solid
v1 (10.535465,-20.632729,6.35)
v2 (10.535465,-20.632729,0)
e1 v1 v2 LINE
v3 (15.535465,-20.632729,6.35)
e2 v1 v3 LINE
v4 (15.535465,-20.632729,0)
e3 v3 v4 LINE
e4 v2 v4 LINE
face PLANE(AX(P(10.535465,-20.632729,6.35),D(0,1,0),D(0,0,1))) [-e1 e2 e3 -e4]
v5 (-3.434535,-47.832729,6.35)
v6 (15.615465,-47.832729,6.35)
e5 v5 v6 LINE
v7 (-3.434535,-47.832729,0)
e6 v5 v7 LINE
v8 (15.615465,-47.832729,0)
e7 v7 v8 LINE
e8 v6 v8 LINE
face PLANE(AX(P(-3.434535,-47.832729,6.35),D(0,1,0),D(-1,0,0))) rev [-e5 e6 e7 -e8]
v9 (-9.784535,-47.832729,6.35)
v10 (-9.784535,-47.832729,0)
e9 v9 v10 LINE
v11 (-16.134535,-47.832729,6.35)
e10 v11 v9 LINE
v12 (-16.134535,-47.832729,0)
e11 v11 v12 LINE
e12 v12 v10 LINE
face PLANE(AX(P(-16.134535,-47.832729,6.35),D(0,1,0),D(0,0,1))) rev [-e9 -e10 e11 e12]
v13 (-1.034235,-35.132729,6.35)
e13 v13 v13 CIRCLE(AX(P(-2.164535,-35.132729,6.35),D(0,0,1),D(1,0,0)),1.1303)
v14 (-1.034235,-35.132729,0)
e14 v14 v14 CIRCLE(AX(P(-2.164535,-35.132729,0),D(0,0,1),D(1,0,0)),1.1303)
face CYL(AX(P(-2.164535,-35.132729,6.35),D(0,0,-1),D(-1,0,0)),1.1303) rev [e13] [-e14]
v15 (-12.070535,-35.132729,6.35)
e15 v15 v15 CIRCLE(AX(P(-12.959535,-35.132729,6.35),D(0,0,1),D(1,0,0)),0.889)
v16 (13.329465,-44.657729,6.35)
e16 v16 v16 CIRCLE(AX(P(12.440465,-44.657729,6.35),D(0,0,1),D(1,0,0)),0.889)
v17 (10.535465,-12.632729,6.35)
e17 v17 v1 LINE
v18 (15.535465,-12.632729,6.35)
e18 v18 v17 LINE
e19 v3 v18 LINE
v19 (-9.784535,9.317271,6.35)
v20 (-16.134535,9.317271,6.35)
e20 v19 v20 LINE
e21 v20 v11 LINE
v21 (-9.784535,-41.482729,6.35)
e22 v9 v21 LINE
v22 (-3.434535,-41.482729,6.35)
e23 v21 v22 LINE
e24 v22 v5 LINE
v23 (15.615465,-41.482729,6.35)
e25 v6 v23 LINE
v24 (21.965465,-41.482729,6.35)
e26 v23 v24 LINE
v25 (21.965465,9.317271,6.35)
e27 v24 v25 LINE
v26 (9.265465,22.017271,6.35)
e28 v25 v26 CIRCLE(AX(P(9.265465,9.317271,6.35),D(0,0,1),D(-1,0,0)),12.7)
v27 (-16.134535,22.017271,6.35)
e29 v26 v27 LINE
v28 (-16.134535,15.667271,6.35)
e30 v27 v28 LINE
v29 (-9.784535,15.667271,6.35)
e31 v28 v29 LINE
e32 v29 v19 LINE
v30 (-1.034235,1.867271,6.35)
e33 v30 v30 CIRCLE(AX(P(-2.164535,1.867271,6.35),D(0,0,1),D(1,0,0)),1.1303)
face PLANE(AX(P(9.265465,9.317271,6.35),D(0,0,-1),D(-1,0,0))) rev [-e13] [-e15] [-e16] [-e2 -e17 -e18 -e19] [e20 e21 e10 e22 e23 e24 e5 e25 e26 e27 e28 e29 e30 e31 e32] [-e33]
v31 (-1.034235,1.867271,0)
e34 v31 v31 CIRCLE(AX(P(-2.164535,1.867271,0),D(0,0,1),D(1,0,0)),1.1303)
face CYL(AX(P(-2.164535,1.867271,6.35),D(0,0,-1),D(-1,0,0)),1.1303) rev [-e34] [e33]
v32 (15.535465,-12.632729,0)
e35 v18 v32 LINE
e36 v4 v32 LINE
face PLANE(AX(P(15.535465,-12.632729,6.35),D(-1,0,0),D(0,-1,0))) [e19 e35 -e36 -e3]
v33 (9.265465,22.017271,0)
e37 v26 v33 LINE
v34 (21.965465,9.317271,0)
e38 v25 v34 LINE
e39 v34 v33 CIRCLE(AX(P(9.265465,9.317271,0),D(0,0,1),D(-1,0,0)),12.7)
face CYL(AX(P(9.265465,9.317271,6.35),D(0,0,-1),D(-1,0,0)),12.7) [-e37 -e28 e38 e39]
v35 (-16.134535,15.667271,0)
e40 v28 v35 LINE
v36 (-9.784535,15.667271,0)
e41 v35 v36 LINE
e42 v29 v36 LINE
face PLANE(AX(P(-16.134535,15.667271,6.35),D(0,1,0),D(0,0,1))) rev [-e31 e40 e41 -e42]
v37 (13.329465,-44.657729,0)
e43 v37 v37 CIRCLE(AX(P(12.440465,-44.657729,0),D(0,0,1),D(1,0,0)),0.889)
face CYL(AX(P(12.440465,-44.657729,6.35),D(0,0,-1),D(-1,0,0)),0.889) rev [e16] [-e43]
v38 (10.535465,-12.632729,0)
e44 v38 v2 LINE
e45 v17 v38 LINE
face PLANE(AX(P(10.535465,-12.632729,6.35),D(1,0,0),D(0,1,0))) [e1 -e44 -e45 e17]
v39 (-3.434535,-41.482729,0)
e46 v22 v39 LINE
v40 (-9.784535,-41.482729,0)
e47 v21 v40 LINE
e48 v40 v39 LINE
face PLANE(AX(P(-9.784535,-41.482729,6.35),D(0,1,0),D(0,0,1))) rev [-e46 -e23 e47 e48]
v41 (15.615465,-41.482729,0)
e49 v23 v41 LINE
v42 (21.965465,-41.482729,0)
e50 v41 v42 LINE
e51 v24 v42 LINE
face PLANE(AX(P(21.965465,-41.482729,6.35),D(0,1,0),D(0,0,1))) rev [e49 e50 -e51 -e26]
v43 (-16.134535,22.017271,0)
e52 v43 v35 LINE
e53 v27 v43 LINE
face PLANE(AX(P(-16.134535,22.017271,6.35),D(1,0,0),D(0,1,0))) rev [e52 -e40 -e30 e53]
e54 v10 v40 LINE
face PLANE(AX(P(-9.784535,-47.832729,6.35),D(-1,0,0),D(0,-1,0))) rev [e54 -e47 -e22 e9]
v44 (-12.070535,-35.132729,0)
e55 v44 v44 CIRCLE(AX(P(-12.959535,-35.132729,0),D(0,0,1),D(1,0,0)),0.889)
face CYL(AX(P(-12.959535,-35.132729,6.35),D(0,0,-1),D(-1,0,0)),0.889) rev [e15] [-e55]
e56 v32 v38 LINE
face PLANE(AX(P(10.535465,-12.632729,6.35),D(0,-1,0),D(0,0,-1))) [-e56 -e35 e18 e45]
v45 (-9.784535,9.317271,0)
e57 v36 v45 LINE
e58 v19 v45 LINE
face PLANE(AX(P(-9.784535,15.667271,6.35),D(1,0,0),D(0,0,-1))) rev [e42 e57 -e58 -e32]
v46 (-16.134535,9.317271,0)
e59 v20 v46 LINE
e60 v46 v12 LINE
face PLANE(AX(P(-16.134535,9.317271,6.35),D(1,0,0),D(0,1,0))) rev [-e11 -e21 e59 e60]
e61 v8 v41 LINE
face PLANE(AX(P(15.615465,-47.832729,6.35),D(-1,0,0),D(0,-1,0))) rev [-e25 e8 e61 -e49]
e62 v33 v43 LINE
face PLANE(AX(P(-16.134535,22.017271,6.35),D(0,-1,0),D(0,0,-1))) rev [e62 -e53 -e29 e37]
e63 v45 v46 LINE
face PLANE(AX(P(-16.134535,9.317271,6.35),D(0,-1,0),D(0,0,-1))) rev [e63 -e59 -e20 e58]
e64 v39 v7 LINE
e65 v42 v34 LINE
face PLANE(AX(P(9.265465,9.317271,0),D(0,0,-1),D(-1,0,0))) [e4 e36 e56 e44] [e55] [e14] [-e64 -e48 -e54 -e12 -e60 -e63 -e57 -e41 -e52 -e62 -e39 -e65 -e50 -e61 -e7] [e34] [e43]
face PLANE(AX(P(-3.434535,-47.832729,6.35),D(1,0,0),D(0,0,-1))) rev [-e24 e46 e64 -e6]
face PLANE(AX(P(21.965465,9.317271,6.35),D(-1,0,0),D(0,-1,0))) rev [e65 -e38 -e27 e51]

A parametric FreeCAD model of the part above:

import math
import FreeCAD as App
import Part
import Sketcher

V = App.Vector
Q = App.Units.Quantity


def add_polygon(sketch, points):
    """Adds a closed chain of lines whose ends are joined by coincident constraints."""
    first, n = sketch.GeometryCount, len(points)
    for a, b in zip(points, points[1:] + points[:1]):
        sketch.addGeometry(Part.LineSegment(App.Vector(*a, 0), App.Vector(*b, 0)), False)
    for i in range(n):
        sketch.addConstraint(Sketcher.Constraint("Coincident", first + i, 2, first + (i + 1) % n, 1))

doc = App.newDocument("Part")
body = doc.addObject("PartDesign::Body", "Body")

sketch1 = doc.addObject("Sketcher::SketchObject", "Sketch")
body.addObject(sketch1)
sketch1.AttachmentSupport = (doc.XY_Plane, [""])
sketch1.MapMode = "FlatFace"
sketch1.addGeometry(Part.LineSegment(V(-16.1, 9.3, 0), V(-16.1, -47.8, 0)), False)
sketch1.addGeometry(Part.LineSegment(V(-16.1, -47.8, 0), V(-9.8, -47.8, 0)), False)
sketch1.addGeometry(Part.LineSegment(V(-9.8, -47.8, 0), V(-9.8, -41.5, 0)), False)
sketch1.addGeometry(Part.LineSegment(V(-9.8, -41.5, 0), V(-3.4, -41.5, 0)), False)
sketch1.addGeometry(Part.LineSegment(V(-3.4, -41.5, 0), V(-3.4, -47.8, 0)), False)
sketch1.addGeometry(Part.LineSegment(V(-3.4, -47.8, 0), V(15.6, -47.8, 0)), False)
sketch1.addGeometry(Part.LineSegment(V(15.6, -47.8, 0), V(15.6, -41.5, 0)), False)
sketch1.addGeometry(Part.LineSegment(V(15.6, -41.5, 0), V(22, -41.5, 0)), False)
sketch1.addGeometry(Part.LineSegment(V(22, -41.5, 0), V(22, 9.3, 0)), False)
sketch1.addGeometry(Part.ArcOfCircle(Part.Circle(V(9.3, 9.3, 0), V(0, 0, 1), 12.7), math.radians(0), math.radians(90)), False)
sketch1.addGeometry(Part.LineSegment(V(9.3, 22, 0), V(-16.1, 22, 0)), False)
sketch1.addGeometry(Part.LineSegment(V(-16.1, 22, 0), V(-16.1, 15.7, 0)), False)
sketch1.addGeometry(Part.LineSegment(V(-16.1, 15.7, 0), V(-9.8, 15.7, 0)), False)
sketch1.addGeometry(Part.LineSegment(V(-9.8, 15.7, 0), V(-9.8, 9.3, 0)), False)
sketch1.addGeometry(Part.LineSegment(V(-9.8, 9.3, 0), V(-16.1, 9.3, 0)), False)
sketch1.addGeometry(Part.Circle(V(-13, -35.1, 0), V(0, 0, 1), 0.9), False)
sketch1.addGeometry(Part.Circle(V(-2.2, -35.1, 0), V(0, 0, 1), 1.1), False)
sketch1.addGeometry(Part.Circle(V(12.4, -44.7, 0), V(0, 0, 1), 0.9), False)
sketch1.addGeometry(Part.Circle(V(-2.2, 1.9, 0), V(0, 0, 1), 1.1), False)
add_polygon(sketch1, [(15.5, -20.6), (10.5, -20.6), (10.5, -12.6), (15.5, -12.6)])
sketch1.addConstraint([
    Sketcher.Constraint("Coincident", 0, 2, 1, 1),
    Sketcher.Constraint("Coincident", 1, 2, 2, 1),
    Sketcher.Constraint("Coincident", 2, 2, 3, 1),
    Sketcher.Constraint("Coincident", 3, 2, 4, 1),
    Sketcher.Constraint("Coincident", 4, 2, 5, 1),
    Sketcher.Constraint("Coincident", 5, 2, 6, 1),
    Sketcher.Constraint("Coincident", 6, 2, 7, 1),
    Sketcher.Constraint("Coincident", 7, 2, 8, 1),
    Sketcher.Constraint("Tangent", 8, 2, 9, 1),
    Sketcher.Constraint("Tangent", 9, 2, 10, 1),
    Sketcher.Constraint("Coincident", 10, 2, 11, 1),
    Sketcher.Constraint("Coincident", 11, 2, 12, 1),
    Sketcher.Constraint("Coincident", 12, 2, 13, 1),
    Sketcher.Constraint("Coincident", 13, 2, 14, 1),
    Sketcher.Constraint("Coincident", 14, 2, 0, 1),
    Sketcher.Constraint("Vertical", 0),
    Sketcher.Constraint("Horizontal", 1),
    Sketcher.Constraint("Vertical", 2),
    Sketcher.Constraint("Horizontal", 3),
    Sketcher.Constraint("Vertical", 4),
    Sketcher.Constraint("Horizontal", 5),
    Sketcher.Constraint("Vertical", 6),
    Sketcher.Constraint("Horizontal", 7),
    Sketcher.Constraint("Vertical", 8),
    Sketcher.Constraint("Horizontal", 10),
    Sketcher.Constraint("Vertical", 11),
    Sketcher.Constraint("Horizontal", 12),
    Sketcher.Constraint("Vertical", 13),
    Sketcher.Constraint("Horizontal", 14),
    Sketcher.Constraint("Horizontal", 19),
    Sketcher.Constraint("Vertical", 20),
    Sketcher.Constraint("Horizontal", 21),
    Sketcher.Constraint("Vertical", 22),
    Sketcher.Constraint("Equal", 15, 17),
    Sketcher.Constraint("Equal", 16, 18),
    Sketcher.Constraint("Horizontal", 15, 3, 16, 3),
    Sketcher.Constraint("Horizontal", 1, 2, 4, 2),
    Sketcher.Constraint("Horizontal", 3, 2, 6, 2),
    Sketcher.Constraint("Horizontal", 8, 2, 13, 2),
    Sketcher.Constraint("Vertical", 16, 3, 18, 3),
    Sketcher.Constraint("Vertical", 0, 2, 10, 2),
    Sketcher.Constraint("Vertical", 2, 2, 12, 2),
    Sketcher.Constraint("Equal", 1, 3),
    Sketcher.Constraint("Equal", 3, 7),
    Sketcher.Constraint("Equal", 14, 2),
    Sketcher.Constraint("Equal", 6, 11),
    Sketcher.Constraint("Equal", 11, 13),
    Sketcher.Constraint("Radius", 9, Q("0.5 in")),
    Sketcher.Constraint("Diameter", 15, Q("0.07 in")),
    Sketcher.Constraint("DistanceX", 10, 2, 10, 1, Q("1 in")),
    Sketcher.Constraint("DistanceY", 8, 1, 8, 2, Q("2 in")),
    Sketcher.Constraint("Diameter", 16, Q("0.089 in")),
    Sketcher.Constraint("DistanceX", 15, 3, 17, 3, Q("1 in")),
    Sketcher.Constraint("DistanceY", 0, 2, 15, 3, Q("0.5 in")),
    Sketcher.Constraint("DistanceX", 1, 2, 16, 3, Q("0.3 in")),
    Sketcher.Constraint("DistanceX", 16, 3, 19, 2, Q("0.5 in")),
    Sketcher.Constraint("DistanceX", 15, 3, 9, 3, Q("0.875 in")),
    Sketcher.Constraint("DistanceY", 17, 3, 16, 3, Q("0.375 in")),
    Sketcher.Constraint("DistanceX", 19, 2, 19, 1, Q("5 mm")),
    Sketcher.Constraint("DistanceY", 20, 1, 20, 2, Q("8 mm")),
    Sketcher.Constraint("DistanceY", 18, 3, 9, 3, Q("7.45 mm")),
    Sketcher.Constraint("DistanceY", 16, 3, 19, 2, Q("14.5 mm")),
    Sketcher.Constraint("DistanceY", -1, 1, 9, 3, Q("9.317271 mm")),
    Sketcher.Constraint("DistanceX", -1, 1, 9, 3, Q("9.265465 mm")),
])
pad1 = doc.addObject("PartDesign::Pad", "Pad")
body.addObject(pad1)
pad1.Profile = sketch1
pad1.Length = Q("0.25 in")

doc.recompute()
